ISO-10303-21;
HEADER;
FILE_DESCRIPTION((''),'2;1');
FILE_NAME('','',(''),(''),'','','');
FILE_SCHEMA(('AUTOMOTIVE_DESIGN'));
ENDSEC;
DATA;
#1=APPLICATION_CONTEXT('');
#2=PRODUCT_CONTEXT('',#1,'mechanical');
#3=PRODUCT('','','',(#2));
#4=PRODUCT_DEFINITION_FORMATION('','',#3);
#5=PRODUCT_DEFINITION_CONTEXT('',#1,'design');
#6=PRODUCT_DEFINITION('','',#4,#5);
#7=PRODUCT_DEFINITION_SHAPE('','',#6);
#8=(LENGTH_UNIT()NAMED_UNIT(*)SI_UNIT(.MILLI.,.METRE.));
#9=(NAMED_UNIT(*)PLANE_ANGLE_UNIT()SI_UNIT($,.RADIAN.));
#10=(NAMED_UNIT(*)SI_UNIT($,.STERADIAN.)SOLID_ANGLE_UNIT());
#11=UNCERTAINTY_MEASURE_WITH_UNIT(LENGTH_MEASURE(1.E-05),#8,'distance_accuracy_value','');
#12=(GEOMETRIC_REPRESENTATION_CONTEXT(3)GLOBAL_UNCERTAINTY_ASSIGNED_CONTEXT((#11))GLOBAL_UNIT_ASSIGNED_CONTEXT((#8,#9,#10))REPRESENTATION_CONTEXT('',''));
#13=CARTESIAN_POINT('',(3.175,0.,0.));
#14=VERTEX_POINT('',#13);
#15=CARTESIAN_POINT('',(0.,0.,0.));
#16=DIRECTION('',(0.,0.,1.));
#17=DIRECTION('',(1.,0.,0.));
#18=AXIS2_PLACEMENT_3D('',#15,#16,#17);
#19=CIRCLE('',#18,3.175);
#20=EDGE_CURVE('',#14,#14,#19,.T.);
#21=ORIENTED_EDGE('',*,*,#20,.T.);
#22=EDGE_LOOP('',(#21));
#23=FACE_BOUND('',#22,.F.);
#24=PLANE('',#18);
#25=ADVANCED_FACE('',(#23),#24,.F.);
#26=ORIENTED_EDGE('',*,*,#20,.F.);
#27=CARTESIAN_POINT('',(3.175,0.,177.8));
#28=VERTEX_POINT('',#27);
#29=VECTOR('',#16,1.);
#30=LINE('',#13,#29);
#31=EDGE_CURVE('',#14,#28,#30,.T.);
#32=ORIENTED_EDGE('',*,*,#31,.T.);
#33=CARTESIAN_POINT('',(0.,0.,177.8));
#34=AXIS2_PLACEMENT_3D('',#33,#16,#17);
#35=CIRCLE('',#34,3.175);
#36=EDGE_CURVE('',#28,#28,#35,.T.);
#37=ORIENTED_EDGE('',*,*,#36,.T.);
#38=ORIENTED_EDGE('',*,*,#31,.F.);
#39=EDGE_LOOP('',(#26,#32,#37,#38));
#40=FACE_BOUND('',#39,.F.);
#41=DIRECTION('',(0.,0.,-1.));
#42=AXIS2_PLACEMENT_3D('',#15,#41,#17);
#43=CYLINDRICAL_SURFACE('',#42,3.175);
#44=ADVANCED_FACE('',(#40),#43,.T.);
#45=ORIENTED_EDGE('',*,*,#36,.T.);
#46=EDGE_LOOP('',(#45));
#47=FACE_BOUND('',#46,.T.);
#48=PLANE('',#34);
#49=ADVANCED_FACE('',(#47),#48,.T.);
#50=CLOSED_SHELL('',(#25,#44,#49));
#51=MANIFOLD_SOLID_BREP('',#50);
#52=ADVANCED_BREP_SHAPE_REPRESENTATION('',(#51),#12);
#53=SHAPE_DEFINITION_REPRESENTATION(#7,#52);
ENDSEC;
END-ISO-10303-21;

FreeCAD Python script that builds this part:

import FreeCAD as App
import Part
import Sketcher
from FreeCAD import Vector
Q = App.Units.Quantity

doc = App.newDocument("Part")
body = doc.addObject("PartDesign::Body", "Body")

# Sketch on XY plane
sketch1 = body.newObject("Sketcher::SketchObject", "Sketch")
sketch1.AttachmentSupport = (doc.getObject("XY_Plane"), [""])
sketch1.MapMode = "FlatFace"
sketch1.addGeometry(Part.Circle(Vector(0, 0, 0), Vector(0, 0, 1), 3.2), False)
sketch1.addConstraint([
    Sketcher.Constraint("Coincident", 0, 3, -1, 1),
    Sketcher.Constraint("Diameter", 0, Q("0.25 in")),
])
pad1 = body.newObject("PartDesign::Pad", "Pad")
pad1.Profile = sketch1
pad1.Length = Q("7 in")

doc.recompute()
